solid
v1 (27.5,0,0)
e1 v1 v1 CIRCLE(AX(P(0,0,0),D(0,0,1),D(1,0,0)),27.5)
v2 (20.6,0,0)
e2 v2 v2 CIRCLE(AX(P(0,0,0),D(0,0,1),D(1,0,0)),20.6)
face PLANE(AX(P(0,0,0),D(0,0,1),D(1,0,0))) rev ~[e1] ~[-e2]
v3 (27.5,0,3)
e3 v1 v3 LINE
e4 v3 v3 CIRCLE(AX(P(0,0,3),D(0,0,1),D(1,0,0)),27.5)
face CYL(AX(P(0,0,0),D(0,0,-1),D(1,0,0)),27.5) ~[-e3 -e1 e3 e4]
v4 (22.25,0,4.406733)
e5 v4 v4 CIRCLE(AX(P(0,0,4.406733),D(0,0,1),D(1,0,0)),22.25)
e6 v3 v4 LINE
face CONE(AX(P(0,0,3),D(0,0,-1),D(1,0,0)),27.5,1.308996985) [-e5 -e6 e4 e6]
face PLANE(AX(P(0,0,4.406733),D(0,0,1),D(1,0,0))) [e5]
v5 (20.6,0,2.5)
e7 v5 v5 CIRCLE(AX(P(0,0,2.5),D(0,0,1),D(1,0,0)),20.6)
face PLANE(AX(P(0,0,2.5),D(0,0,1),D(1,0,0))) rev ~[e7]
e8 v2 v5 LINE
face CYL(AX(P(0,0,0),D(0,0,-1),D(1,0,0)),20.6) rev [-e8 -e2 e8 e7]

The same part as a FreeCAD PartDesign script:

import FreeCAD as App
import Part
import Sketcher

V = App.Vector
Q = App.Units.Quantity


def add_polygon(sketch, points):
    """Adds a closed chain of lines whose ends are joined by coincident constraints."""
    first, n = sketch.GeometryCount, len(points)
    for a, b in zip(points, points[1:] + points[:1]):
        sketch.addGeometry(Part.LineSegment(App.Vector(*a, 0), App.Vector(*b, 0)), False)
    for i in range(n):
        sketch.addConstraint(Sketcher.Constraint("Coincident", first + i, 2, first + (i + 1) % n, 1))

doc = App.newDocument("Part")
params = doc.addObject("Spreadsheet::Sheet", "Params")
for row, (alias, value) in enumerate([
    ("sketch1_diameter", "41.2 mm"),
    ("pad1_length", "2.5 mm"),
    ("sketch2_width", "27.5 mm"),
    ("sketch2_width2", "22.25 mm"),
    ("revolution_angle", "360 deg"),
    ("sketch3_diameter", "55 mm"),
    ("pad2_length", "3 mm"),
], start=1):
    params.set(f"A{row}", alias)
    params.set(f"B{row}", "=" + value)
    params.setAlias(f"B{row}", alias)

body = doc.addObject("PartDesign::Body", "Body")

sketch1 = doc.addObject("Sketcher::SketchObject", "Sketch")
body.addObject(sketch1)
sketch1.AttachmentSupport = (doc.XY_Plane, [""])
sketch1.MapMode = "FlatFace"
sketch1.addGeometry(Part.Circle(V(0, 0, 0), V(0, 0, 1), 21), False)
sketch1.addConstraint([
    Sketcher.Constraint("Coincident", 0, 3, -1, 1),
    Sketcher.Constraint("Diameter", 0, Q("41.2 mm")),
])
sketch1.setExpression("Constraints[1]", "Params.sketch1_diameter")
pad1 = doc.addObject("PartDesign::Pad", "Pad")
body.addObject(pad1)
pad1.Profile = sketch1
pad1.setExpression("Length", "Params.pad1_length")
body2 = doc.addObject("PartDesign::Body", "Body001")

sketch2 = doc.addObject("Sketcher::SketchObject", "Sketch001")
body2.addObject(sketch2)
sketch2.AttachmentSupport = (doc.getObject("XZ_Plane001"), [""])
sketch2.MapMode = "FlatFace"
add_polygon(sketch2, [(0, 3), (27.5, 3), (22.2, 4.4), (0, 4.4)])
sketch2.addConstraint([
    Sketcher.Constraint("Horizontal", 0),
    Sketcher.Constraint("Horizontal", 2),
    Sketcher.Constraint("Vertical", 3),
    Sketcher.Constraint("PointOnObject", 2, 2, -2),
    Sketcher.Constraint("Angle", 1, Q("165.000003 deg")),
    Sketcher.Constraint("DistanceX", 0, 1, 0, 2, Q("27.5 mm")),
    Sketcher.Constraint("DistanceY", -1, 1, 0, 2, Q("3 mm")),
    Sketcher.Constraint("DistanceX", 2, 2, 2, 1, Q("22.25 mm")),
])
sketch2.setExpression("Constraints[9]", "Params.sketch2_width")
sketch2.setExpression("Constraints[11]", "Params.sketch2_width2")
revolution = doc.addObject("PartDesign::Revolution", "Revolution")
body2.addObject(revolution)
revolution.Profile = sketch2
revolution.ReferenceAxis = (sketch2, ["V_Axis"])
revolution.setExpression("Angle", "Params.revolution_angle")
body3 = doc.addObject("PartDesign::Body", "Body002")

sketch3 = doc.addObject("Sketcher::SketchObject", "Sketch002")
body3.addObject(sketch3)
sketch3.AttachmentSupport = (doc.getObject("XY_Plane002"), [""])
sketch3.MapMode = "FlatFace"
sketch3.addGeometry(Part.Circle(V(0, 0, 0), V(0, 0, 1), 28), False)
sketch3.addConstraint([
    Sketcher.Constraint("Coincident", 0, 3, -1, 1),
    Sketcher.Constraint("Diameter", 0, Q("55 mm")),
])
sketch3.setExpression("Constraints[1]", "Params.sketch3_diameter")
pad2 = doc.addObject("PartDesign::Pad", "Pad001")
body3.addObject(pad2)
pad2.Profile = sketch3
pad2.setExpression("Length", "Params.pad2_length")
doc.recompute()

boolean = doc.addObject("PartDesign::Boolean", "Boolean")
body3.addObject(boolean)
boolean.Type = "Fuse"
boolean.addObjects([body2])
doc.recompute()

boolean2 = doc.addObject("PartDesign::Boolean", "Boolean001")
body3.addObject(boolean2)
boolean2.Type = "Cut"
boolean2.addObjects([body])

doc.recompute()
